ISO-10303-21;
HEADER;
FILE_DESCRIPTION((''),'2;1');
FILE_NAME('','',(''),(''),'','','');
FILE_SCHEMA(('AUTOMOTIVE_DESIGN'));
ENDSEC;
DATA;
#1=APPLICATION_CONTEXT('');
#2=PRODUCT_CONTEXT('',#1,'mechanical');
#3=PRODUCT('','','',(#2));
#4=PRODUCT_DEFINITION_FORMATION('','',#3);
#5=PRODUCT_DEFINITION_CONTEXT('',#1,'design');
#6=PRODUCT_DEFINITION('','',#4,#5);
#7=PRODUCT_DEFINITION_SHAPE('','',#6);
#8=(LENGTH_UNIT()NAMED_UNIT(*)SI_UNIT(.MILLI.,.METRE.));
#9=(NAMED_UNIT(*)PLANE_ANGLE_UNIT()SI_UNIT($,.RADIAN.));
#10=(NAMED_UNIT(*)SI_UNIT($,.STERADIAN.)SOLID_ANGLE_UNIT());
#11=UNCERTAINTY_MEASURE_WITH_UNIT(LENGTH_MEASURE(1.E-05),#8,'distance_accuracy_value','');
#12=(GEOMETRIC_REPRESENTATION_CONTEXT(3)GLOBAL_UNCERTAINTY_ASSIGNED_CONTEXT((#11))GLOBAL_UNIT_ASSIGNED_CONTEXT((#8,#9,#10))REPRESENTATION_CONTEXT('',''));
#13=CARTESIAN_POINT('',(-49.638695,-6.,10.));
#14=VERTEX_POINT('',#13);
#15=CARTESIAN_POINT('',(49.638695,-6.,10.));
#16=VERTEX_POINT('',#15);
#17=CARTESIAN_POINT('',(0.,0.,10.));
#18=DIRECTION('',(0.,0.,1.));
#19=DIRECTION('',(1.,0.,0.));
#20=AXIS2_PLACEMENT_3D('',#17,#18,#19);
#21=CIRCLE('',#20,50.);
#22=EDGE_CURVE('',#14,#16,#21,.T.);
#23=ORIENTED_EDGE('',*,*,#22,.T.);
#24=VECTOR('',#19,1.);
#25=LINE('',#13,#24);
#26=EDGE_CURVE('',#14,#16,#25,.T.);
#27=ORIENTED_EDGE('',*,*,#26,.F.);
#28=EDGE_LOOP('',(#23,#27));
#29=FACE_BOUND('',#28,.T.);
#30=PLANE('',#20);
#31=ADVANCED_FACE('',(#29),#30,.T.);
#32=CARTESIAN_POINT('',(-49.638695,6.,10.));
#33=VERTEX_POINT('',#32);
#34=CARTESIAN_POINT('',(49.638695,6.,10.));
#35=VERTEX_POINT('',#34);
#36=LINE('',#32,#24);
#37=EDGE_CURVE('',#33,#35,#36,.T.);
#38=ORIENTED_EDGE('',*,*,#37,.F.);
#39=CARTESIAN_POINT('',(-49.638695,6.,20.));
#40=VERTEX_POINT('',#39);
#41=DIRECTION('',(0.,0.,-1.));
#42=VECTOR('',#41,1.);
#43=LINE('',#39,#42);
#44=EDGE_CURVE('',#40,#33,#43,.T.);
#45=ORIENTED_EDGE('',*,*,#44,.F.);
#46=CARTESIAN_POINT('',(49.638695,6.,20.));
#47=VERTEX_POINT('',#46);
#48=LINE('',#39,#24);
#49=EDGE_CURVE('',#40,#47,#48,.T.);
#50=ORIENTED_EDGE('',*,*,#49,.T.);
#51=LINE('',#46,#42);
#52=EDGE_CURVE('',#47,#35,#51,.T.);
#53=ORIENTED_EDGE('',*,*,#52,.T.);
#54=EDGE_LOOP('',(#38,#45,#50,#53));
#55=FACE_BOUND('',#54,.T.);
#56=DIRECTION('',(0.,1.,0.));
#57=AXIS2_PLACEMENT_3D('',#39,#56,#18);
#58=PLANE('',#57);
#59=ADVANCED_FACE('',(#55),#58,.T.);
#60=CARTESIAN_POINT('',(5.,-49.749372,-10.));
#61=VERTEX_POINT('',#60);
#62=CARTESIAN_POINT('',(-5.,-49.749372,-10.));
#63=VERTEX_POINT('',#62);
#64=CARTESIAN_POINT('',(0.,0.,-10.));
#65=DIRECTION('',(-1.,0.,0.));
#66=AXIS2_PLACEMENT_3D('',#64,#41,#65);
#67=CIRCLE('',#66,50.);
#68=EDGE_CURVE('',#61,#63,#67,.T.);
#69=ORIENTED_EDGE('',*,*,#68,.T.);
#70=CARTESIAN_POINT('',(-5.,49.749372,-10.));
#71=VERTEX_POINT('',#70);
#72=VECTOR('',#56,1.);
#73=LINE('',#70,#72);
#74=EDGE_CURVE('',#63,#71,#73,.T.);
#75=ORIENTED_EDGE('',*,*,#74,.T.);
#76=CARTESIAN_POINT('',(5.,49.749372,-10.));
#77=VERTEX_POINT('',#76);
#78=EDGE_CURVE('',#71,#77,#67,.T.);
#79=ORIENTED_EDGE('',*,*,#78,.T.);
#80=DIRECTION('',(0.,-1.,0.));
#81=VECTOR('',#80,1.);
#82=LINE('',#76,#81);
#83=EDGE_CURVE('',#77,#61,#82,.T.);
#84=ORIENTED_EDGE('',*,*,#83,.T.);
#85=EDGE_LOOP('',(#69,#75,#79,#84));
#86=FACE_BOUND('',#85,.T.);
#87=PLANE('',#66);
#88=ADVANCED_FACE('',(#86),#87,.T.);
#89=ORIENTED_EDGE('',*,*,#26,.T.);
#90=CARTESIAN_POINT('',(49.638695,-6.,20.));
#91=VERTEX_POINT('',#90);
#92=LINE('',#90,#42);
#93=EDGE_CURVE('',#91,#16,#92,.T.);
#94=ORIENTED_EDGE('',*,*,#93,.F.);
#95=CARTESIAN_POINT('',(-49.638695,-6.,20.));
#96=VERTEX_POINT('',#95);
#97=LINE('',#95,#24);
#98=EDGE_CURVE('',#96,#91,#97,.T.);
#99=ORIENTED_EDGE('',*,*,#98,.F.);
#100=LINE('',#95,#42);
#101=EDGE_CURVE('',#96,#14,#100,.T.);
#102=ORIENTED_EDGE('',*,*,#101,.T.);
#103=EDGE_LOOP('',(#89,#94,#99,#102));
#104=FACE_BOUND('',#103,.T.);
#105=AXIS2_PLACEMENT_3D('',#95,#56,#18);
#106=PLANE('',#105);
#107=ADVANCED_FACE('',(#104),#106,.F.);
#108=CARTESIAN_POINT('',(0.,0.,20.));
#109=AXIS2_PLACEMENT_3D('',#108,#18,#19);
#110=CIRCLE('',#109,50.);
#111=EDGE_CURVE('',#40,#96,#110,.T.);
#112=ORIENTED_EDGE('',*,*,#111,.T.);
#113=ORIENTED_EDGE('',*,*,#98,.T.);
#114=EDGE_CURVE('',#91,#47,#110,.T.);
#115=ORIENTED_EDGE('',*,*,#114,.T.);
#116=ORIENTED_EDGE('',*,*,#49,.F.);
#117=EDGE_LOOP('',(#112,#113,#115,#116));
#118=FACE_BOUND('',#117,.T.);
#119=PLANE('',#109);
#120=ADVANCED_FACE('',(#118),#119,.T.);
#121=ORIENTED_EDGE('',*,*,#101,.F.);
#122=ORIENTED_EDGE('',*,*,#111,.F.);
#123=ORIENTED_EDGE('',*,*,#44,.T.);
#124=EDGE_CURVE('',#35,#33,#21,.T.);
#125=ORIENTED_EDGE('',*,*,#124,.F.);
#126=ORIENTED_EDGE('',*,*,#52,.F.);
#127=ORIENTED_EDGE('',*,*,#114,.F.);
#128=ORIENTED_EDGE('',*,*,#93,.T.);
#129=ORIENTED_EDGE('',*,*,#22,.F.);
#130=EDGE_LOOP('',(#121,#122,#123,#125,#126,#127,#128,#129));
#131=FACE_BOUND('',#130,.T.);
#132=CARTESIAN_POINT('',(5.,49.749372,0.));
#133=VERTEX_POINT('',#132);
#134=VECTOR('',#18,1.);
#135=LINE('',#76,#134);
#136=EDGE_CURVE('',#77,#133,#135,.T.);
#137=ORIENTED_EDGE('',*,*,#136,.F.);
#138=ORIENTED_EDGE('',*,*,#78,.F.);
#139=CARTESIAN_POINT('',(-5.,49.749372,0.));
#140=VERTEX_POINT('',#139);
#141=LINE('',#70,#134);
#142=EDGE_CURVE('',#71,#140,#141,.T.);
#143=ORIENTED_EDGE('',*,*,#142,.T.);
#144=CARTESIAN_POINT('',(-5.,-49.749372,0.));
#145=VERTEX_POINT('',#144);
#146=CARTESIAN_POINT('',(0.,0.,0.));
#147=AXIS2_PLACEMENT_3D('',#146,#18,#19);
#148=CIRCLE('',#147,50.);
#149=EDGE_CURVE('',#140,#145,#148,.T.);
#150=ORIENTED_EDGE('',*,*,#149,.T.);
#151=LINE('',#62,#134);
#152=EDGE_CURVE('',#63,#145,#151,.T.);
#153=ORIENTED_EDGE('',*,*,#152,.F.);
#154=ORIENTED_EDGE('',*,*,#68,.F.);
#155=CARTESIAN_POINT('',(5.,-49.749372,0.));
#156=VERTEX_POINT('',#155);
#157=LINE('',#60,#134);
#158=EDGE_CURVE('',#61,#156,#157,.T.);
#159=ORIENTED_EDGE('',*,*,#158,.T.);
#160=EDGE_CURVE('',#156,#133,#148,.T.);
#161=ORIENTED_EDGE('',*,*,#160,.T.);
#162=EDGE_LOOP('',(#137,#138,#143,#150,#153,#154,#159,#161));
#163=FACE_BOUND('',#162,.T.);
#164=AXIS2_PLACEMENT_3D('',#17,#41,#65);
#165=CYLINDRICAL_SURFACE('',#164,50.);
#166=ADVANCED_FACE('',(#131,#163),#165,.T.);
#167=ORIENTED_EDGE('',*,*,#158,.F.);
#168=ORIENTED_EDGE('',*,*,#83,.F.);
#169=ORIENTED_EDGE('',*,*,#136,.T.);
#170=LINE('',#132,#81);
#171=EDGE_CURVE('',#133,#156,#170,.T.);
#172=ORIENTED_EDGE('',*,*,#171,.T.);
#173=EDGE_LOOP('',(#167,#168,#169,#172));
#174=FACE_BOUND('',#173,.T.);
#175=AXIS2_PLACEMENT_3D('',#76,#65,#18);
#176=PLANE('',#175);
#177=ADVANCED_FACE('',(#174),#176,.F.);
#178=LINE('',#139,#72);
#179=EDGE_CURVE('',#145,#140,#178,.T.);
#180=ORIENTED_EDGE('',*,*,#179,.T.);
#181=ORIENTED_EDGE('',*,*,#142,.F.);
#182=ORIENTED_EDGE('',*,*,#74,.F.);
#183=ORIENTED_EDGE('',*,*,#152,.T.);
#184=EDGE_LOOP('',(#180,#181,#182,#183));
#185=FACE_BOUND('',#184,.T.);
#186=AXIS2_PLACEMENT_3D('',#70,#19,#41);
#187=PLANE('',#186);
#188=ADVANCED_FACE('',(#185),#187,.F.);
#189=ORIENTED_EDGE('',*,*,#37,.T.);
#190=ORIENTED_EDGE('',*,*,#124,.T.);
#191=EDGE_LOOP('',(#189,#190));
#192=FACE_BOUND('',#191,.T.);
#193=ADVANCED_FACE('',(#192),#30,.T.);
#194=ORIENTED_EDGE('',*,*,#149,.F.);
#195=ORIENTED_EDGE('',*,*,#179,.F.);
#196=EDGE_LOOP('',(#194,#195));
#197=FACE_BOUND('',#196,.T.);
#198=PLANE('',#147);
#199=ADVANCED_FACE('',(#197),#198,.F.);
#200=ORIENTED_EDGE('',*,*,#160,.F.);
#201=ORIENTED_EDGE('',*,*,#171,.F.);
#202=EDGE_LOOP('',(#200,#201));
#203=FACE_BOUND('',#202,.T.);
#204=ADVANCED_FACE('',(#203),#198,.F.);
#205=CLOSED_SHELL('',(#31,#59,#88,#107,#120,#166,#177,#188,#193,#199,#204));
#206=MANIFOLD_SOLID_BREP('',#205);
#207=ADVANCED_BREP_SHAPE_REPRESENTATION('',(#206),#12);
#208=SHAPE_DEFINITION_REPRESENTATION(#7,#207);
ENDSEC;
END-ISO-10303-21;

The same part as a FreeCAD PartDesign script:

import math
import FreeCAD as App
import Part
import Sketcher
Q = App.Units.Quantity

doc = App.newDocument("Part")
body = doc.addObject("PartDesign::Body", "Body")

# Sketch on XY plane
sketch1 = body.newObject("Sketcher::SketchObject", "Sketch")
sketch1.AttachmentSupport = (doc.getObject("XY_Plane"), [""])
sketch1.MapMode = "FlatFace"
sketch1.addGeometry(Part.Circle(App.Vector(0, 0, 0), App.Vector(0, 0, 1), 50), False)
sketch1.addConstraint(Sketcher.Constraint("Coincident", 0, 3, -1, 1))
sketch1.addConstraint(Sketcher.Constraint("Diameter", 0, Q("100 mm")))
pad1 = body.newObject("PartDesign::Pad", "Pad")
pad1.Profile = sketch1
pad1.Length = 10

# Sketch on XY plane
sketch2 = body.newObject("Sketcher::SketchObject", "Sketch001")
sketch2.AttachmentSupport = (doc.getObject("XY_Plane"), [""])
sketch2.MapMode = "FlatFace"
sketch2.AttachmentOffset = App.Placement(App.Vector(0, 0, 10), App.Rotation())
sketch2.addGeometry(Part.LineSegment(App.Vector(50, 6, 0), App.Vector(-50, 6, 0)), False)
sketch2.addGeometry(Part.ArcOfCircle(Part.Circle(App.Vector(0, 0, 0), App.Vector(0, 0, 1), 50), math.radians(173.11), math.radians(186.89)), False)
sketch2.addGeometry(Part.LineSegment(App.Vector(-50, -6, 0), App.Vector(50, -6, 0)), False)
sketch2.addGeometry(Part.ArcOfCircle(Part.Circle(App.Vector(0, 0, 0), App.Vector(0, 0, 1), 50), math.radians(-6.89), math.radians(6.89)), False)
sketch2.addConstraint(Sketcher.Constraint("Coincident", 0, 2, 1, 1))
sketch2.addConstraint(Sketcher.Constraint("Coincident", 1, 2, 2, 1))
sketch2.addConstraint(Sketcher.Constraint("Coincident", 2, 2, 3, 1))
sketch2.addConstraint(Sketcher.Constraint("Coincident", 3, 2, 0, 1))
sketch2.addConstraint(Sketcher.Constraint("Horizontal", 0))
sketch2.addConstraint(Sketcher.Constraint("Horizontal", 2))
sketch2.addConstraint(Sketcher.Constraint("Coincident", 1, 3, -1, 1))
sketch2.addConstraint(Sketcher.Constraint("Coincident", 3, 3, -1, 1))
sketch2.addConstraint(Sketcher.Constraint("Equal", 1, 3))
sketch2.addConstraint(Sketcher.Constraint("Vertical", 0, 2, 1, 2))
sketch2.addConstraint(Sketcher.Constraint("Radius", 1, Q("50 mm")))
sketch2.addConstraint(Sketcher.Constraint("DistanceY", -1, 1, 0, 2, Q("6 mm")))
pad2 = body.newObject("PartDesign::Pad", "Pad001")
pad2.Profile = sketch2
pad2.Length = 10

# Sketch on XY plane
sketch3 = body.newObject("Sketcher::SketchObject", "Sketch002")
sketch3.AttachmentSupport = (doc.getObject("XY_Plane"), [""])
sketch3.MapMode = "FlatFace"
sketch3.AttachmentOffset = App.Placement(App.Vector(0, 0, -10), App.Rotation())
sketch3.addGeometry(Part.LineSegment(App.Vector(5, 50, 0), App.Vector(5, -50, 0)), False)
sketch3.addGeometry(Part.ArcOfCircle(Part.Circle(App.Vector(0, 0, 0), App.Vector(0, 0, 1), 50), math.radians(-95.74), math.radians(-84.26)), False)
sketch3.addGeometry(Part.LineSegment(App.Vector(-5, -50, 0), App.Vector(-5, 50, 0)), False)
sketch3.addGeometry(Part.ArcOfCircle(Part.Circle(App.Vector(0, 0, 0), App.Vector(0, 0, 1), 50), math.radians(84.26), math.radians(95.74)), False)
sketch3.addConstraint(Sketcher.Constraint("Coincident", 0, 2, 1, 2))
sketch3.addConstraint(Sketcher.Constraint("Coincident", 1, 1, 2, 1))
sketch3.addConstraint(Sketcher.Constraint("Coincident", 2, 2, 3, 2))
sketch3.addConstraint(Sketcher.Constraint("Coincident", 3, 1, 0, 1))
sketch3.addConstraint(Sketcher.Constraint("Vertical", 0))
sketch3.addConstraint(Sketcher.Constraint("Vertical", 2))
sketch3.addConstraint(Sketcher.Constraint("Coincident", 1, 3, -1, 1))
sketch3.addConstraint(Sketcher.Constraint("Coincident", 3, 3, -1, 1))
sketch3.addConstraint(Sketcher.Constraint("Equal", 1, 3))
sketch3.addConstraint(Sketcher.Constraint("Horizontal", 0, 2, 1, 1))
sketch3.addConstraint(Sketcher.Constraint("Radius", 1, Q("50 mm")))
sketch3.addConstraint(Sketcher.Constraint("DistanceX", -1, 1, 0, 2, Q("5 mm")))
pad3 = body.newObject("PartDesign::Pad", "Pad002")
pad3.Profile = sketch3
pad3.Length = 10

doc.recompute()
